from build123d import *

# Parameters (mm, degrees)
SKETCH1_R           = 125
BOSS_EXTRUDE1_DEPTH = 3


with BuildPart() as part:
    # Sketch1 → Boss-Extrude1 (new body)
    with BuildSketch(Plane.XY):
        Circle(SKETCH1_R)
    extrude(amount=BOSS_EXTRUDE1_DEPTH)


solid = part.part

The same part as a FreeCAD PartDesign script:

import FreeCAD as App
import Part
import Sketcher

V = App.Vector
Q = App.Units.Quantity

doc = App.newDocument("Part")
body = doc.addObject("PartDesign::Body", "Body")

sketch1 = doc.addObject("Sketcher::SketchObject", "Sketch")
body.addObject(sketch1)
sketch1.AttachmentSupport = (doc.XY_Plane, [""])
sketch1.MapMode = "FlatFace"
sketch1.addGeometry(Part.Circle(V(0, 0, 0), V(0, 0, 1), 125), False)
sketch1.addConstraint(Sketcher.Constraint("Coincident", 0, 3, -1, 1))
sketch1.addConstraint(Sketcher.Constraint("Diameter", 0, Q("250 mm")))
pad1 = doc.addObject("PartDesign::Pad", "Pad")
body.addObject(pad1)
pad1.Profile = sketch1
pad1.Length = 3

doc.recompute()
